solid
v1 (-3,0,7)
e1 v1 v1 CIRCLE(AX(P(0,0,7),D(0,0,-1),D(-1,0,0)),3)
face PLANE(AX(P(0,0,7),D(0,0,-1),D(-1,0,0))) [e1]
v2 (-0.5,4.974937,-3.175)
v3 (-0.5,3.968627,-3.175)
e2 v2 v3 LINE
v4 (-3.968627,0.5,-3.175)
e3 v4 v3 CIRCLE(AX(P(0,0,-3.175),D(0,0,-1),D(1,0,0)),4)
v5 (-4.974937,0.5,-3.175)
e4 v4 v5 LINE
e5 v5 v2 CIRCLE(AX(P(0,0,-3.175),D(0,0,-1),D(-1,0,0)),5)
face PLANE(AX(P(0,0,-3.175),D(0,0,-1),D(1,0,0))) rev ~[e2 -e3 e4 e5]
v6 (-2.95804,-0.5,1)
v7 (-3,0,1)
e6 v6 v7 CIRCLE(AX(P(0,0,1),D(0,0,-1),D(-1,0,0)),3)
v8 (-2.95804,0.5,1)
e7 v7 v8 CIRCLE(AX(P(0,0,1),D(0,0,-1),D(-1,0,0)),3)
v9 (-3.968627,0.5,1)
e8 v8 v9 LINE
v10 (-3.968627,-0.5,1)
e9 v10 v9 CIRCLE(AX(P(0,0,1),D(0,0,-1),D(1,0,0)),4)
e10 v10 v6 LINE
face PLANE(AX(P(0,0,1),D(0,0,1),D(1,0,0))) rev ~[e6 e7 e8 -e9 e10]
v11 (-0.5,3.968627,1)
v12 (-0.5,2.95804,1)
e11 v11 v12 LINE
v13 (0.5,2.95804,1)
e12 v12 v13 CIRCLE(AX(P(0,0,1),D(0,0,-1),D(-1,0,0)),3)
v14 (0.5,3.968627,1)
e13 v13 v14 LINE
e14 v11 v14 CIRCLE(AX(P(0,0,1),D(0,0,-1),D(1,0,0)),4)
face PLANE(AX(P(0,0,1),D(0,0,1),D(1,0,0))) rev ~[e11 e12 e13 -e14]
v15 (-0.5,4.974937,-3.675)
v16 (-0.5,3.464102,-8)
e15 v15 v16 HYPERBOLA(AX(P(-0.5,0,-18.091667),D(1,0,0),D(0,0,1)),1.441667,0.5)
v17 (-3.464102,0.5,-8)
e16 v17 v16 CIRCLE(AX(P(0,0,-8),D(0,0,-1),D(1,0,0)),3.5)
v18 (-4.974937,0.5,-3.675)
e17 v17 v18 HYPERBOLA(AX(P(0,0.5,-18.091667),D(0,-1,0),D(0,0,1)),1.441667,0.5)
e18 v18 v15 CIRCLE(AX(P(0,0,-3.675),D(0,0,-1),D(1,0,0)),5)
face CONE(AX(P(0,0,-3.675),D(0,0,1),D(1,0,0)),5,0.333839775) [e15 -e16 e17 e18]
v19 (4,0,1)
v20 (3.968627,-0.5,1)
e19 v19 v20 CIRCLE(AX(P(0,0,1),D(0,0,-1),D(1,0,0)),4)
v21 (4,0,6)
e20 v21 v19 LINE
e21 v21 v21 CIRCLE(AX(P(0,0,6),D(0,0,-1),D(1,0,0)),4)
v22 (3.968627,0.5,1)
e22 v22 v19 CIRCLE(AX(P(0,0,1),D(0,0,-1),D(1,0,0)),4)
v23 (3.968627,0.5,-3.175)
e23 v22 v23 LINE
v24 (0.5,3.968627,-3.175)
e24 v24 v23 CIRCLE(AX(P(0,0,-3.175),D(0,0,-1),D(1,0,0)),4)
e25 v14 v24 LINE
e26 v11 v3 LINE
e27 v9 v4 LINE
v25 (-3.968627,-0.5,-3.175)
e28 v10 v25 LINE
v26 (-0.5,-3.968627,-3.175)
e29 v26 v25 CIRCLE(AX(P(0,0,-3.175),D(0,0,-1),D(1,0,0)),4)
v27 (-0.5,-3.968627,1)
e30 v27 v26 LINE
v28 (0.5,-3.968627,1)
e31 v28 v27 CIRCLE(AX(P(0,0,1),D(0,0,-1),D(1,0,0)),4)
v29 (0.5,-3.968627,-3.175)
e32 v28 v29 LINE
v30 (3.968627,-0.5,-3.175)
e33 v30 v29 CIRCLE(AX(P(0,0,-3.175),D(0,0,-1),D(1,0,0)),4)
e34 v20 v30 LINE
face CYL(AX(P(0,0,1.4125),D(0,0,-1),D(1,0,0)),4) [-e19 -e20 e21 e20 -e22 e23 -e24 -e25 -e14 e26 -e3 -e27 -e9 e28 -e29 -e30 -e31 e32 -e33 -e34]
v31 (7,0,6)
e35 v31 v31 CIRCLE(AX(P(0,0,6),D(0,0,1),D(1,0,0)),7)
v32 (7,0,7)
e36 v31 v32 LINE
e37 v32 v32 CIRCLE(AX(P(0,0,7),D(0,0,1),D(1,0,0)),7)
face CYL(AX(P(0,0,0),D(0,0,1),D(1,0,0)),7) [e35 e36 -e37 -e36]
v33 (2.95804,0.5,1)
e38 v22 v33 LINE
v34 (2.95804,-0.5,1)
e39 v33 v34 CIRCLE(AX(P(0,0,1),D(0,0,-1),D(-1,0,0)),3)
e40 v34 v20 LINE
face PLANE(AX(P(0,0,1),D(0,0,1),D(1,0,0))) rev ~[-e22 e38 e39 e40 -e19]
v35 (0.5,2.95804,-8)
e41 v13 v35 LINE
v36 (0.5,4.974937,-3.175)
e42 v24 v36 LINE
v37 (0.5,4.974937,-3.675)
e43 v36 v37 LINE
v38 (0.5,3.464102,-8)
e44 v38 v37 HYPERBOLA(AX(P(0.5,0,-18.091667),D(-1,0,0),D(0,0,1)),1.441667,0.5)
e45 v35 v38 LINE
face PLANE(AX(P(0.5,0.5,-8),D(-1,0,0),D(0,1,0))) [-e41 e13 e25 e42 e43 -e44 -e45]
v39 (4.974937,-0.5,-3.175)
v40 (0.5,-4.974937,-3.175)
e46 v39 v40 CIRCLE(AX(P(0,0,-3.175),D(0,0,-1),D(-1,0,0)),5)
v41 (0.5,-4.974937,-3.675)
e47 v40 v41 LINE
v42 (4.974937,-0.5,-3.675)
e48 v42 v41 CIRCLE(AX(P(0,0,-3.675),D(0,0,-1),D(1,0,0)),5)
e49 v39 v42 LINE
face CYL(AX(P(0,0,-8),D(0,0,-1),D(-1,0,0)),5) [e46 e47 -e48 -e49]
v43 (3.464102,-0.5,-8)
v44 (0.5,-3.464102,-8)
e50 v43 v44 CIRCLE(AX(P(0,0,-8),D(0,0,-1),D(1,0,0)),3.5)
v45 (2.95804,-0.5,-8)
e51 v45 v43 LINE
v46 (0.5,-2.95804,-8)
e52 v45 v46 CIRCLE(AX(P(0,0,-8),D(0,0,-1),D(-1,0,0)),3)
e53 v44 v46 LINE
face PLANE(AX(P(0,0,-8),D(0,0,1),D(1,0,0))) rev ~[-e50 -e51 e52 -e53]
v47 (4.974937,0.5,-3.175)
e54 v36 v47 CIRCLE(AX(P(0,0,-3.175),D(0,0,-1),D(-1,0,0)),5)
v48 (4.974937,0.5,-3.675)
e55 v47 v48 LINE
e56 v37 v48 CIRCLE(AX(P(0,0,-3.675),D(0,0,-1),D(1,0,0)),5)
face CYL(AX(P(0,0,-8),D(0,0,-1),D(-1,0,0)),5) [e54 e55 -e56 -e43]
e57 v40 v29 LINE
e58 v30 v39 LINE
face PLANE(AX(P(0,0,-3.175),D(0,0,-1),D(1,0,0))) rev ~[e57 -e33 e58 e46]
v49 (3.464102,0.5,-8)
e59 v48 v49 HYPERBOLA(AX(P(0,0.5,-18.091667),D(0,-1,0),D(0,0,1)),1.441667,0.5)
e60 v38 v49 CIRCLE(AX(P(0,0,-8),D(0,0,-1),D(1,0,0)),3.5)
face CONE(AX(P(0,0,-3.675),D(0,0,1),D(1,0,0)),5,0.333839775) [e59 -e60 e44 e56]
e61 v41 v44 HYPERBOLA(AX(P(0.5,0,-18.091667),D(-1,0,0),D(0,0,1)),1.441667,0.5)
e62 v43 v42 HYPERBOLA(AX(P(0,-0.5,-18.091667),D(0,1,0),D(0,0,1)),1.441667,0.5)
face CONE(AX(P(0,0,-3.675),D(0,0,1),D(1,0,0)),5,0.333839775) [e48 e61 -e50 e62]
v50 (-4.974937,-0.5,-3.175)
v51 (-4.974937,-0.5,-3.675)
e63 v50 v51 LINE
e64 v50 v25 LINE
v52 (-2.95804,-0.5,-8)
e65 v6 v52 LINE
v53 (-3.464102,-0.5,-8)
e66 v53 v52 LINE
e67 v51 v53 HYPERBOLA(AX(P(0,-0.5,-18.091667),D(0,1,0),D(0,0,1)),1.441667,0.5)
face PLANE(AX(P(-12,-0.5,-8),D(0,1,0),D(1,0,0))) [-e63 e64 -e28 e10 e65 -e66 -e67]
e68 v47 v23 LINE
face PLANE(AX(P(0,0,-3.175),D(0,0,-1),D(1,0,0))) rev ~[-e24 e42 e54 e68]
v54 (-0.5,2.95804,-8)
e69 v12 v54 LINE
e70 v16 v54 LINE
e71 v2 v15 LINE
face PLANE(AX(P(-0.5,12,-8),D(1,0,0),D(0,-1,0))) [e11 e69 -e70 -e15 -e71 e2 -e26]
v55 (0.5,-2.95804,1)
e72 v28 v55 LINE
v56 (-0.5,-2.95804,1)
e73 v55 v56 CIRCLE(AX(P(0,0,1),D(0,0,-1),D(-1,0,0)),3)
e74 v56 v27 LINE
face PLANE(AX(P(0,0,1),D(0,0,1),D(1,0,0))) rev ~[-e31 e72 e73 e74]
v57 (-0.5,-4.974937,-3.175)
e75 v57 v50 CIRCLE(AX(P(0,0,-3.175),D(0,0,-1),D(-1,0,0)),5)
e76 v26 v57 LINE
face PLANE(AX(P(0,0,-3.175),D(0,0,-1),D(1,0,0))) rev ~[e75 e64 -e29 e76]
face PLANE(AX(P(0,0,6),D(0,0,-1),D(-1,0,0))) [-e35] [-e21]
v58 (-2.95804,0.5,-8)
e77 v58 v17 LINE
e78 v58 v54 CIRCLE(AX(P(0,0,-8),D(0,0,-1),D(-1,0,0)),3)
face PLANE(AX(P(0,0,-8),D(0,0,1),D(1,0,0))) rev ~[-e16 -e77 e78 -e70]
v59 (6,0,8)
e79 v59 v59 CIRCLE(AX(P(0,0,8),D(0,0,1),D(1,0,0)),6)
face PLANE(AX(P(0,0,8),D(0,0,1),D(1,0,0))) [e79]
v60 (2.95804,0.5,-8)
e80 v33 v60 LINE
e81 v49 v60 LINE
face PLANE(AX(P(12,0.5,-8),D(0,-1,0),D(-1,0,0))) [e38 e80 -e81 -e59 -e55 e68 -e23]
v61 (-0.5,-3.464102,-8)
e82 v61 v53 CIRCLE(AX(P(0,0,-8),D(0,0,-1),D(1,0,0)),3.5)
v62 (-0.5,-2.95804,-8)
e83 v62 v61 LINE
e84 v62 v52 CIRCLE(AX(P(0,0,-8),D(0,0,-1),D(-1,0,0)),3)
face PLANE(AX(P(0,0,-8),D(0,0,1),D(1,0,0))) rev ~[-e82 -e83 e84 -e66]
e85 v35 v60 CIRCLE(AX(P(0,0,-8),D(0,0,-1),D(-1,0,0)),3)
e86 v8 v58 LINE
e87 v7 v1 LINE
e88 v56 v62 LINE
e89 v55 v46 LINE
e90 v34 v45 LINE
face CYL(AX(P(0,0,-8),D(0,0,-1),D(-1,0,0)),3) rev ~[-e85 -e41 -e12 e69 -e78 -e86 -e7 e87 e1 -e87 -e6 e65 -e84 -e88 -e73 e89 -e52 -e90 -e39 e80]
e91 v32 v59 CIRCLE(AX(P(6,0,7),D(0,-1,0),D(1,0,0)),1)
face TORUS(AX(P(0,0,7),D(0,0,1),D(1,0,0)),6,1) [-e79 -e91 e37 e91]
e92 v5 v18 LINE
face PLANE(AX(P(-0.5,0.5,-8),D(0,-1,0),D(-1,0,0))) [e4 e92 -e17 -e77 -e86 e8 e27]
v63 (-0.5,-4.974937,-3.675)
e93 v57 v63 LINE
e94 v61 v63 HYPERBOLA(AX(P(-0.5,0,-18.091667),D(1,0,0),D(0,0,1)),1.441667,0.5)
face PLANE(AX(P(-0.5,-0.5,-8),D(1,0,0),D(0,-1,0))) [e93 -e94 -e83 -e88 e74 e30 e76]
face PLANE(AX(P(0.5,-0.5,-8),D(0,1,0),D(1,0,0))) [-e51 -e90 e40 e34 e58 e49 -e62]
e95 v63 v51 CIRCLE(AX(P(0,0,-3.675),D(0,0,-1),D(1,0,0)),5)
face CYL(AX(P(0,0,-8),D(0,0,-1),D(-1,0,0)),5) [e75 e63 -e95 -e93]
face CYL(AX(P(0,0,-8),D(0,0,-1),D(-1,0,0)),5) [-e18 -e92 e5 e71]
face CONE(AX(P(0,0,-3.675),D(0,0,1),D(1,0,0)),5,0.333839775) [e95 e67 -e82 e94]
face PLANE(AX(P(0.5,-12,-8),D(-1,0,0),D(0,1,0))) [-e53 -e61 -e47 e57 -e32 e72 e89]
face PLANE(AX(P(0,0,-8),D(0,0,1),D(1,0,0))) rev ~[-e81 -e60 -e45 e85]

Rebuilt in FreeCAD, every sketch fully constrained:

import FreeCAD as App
import Part
import Sketcher

V = App.Vector


def edges_at(feature, points):
    """Names of the edges that pass closest to the given points."""
    edges = feature.Shape.Edges
    near = lambda p: min(range(len(edges)), key=lambda i: edges[i].distToShape(Part.Vertex(*p))[0])
    return sorted({f"Edge{near(p) + 1}" for p in points})


def add_polygon(sketch, points):
    """Adds a closed chain of lines whose ends are joined by coincident constraints."""
    first, n = sketch.GeometryCount, len(points)
    for a, b in zip(points, points[1:] + points[:1]):
        sketch.addGeometry(Part.LineSegment(App.Vector(*a, 0), App.Vector(*b, 0)), False)
    for i in range(n):
        sketch.addConstraint(Sketcher.Constraint("Coincident", first + i, 2, first + (i + 1) % n, 1))

doc = App.newDocument("Part")
body = doc.addObject("PartDesign::Body", "Body")

# Sketch on XY plane
sketch1 = body.newObject("Sketcher::SketchObject", "Sketch")
sketch1.AttachmentSupport = (doc.getObject("XY_Plane"), [""])
sketch1.MapMode = "FlatFace"
sketch1.addGeometry(Part.Circle(V(0, 0, 0), V(0, 0, 1), 7), False)
sketch1.addConstraint([
    Sketcher.Constraint("Coincident", 0, 3, -1, 1),
    Sketcher.Constraint("Diameter", 0, 14.0),
])
pad1 = body.newObject("PartDesign::Pad", "Pad")
pad1.Profile = sketch1
pad1.Length = 16
pad1.Midplane = True

# Sketch on XY plane
sketch2 = body.newObject("Sketcher::SketchObject", "Sketch001")
sketch2.AttachmentSupport = (doc.getObject("XY_Plane"), [""])
sketch2.MapMode = "FlatFace"
sketch2.AttachmentOffset = App.Placement(V(0, 0, -8), App.Rotation())
add_polygon(sketch2, [(10.546, 10.546), (10.546, -10.546), (-10.546, -10.546), (-10.546, 10.546)])  # lines 0-3
sketch2.addGeometry(Part.Circle(V(0, 0, 0), V(0, 0, 1), 5), False)  # 4
sketch2.addConstraint([
    Sketcher.Constraint("Vertical", 0),
    Sketcher.Constraint("Horizontal", 1),
    Sketcher.Constraint("Vertical", 2),
    Sketcher.Constraint("Horizontal", 3),
    Sketcher.Constraint("Coincident", 4, 3, -1, 1),
    Sketcher.Constraint("Symmetric", 0, 2, 2, 2, -1, 1),
    Sketcher.Constraint("Equal", 3, 0),
    Sketcher.Constraint("Diameter", 4, 10.0),
    Sketcher.Constraint("DistanceX", 1, 2, 1, 1, 21.092),
])
pocket1 = body.newObject("PartDesign::Pocket", "Pocket")
pocket1.Profile = sketch2
pocket1.Length = 14
pocket1.Reversed = True

# Sketch on XZ plane
sketch3 = body.newObject("Sketcher::SketchObject", "Sketch002")
sketch3.AttachmentSupport = (doc.getObject("XZ_Plane"), [""])
sketch3.MapMode = "FlatFace"
add_polygon(sketch3, [(-5, -3.675), (-3.5, -8), (-5, -8)])  # lines 0-2
add_polygon(sketch3, [(-13, -3.175), (-13, 6), (-4, 6), (-4, -3.175)])  # lines 3-6
sketch3.addConstraint([
    Sketcher.Constraint("Horizontal", 1),
    Sketcher.Constraint("Vertical", 2),
    Sketcher.Constraint("Vertical", 3),
    Sketcher.Constraint("Horizontal", 4),
    Sketcher.Constraint("Vertical", 5),
    Sketcher.Constraint("Horizontal", 6),
    Sketcher.Constraint("DistanceX", 4, 1, 4, 2, 9.0),
    Sketcher.Constraint("DistanceX", 1, 2, 1, 1, 1.5),
    Sketcher.Constraint("DistanceY", 0, 2, -1, 1, 8.0),
    Sketcher.Constraint("DistanceX", 1, 2, -1, 1, 5.0),
    Sketcher.Constraint("DistanceX", 3, 2, -1, 1, 13.0),
    Sketcher.Constraint("DistanceY", -1, 1, 3, 2, 6.0),
    Sketcher.Constraint("DistanceY", 2, 2, 5, 2, 0.5),
    Sketcher.Constraint("DistanceY", 2, 1, 2, 2, 4.325),
])
groove = body.newObject("PartDesign::Groove", "Groove")
groove.Profile = sketch3
groove.ReferenceAxis = (sketch3, ["V_Axis"])
groove.Angle = 360

# Sketch on XY plane
sketch4 = body.newObject("Sketcher::SketchObject", "Sketch003")
sketch4.AttachmentSupport = (doc.getObject("XY_Plane"), [""])
sketch4.MapMode = "FlatFace"
sketch4.AttachmentOffset = App.Placement(V(0, 0, -8), App.Rotation())
sketch4.addGeometry(Part.Circle(V(0, 0, 0), V(0, 0, 1), 3), False)
sketch4.addConstraint([
    Sketcher.Constraint("Coincident", 0, 3, -1, 1),
    Sketcher.Constraint("Diameter", 0, 6.0),
])
pocket2 = body.newObject("PartDesign::Pocket", "Pocket001")
pocket2.Profile = sketch4
pocket2.Length = 15
pocket2.Reversed = True

# Sketch on XY plane
sketch5 = body.newObject("Sketcher::SketchObject", "Sketch004")
sketch5.AttachmentSupport = (doc.getObject("XY_Plane"), [""])
sketch5.MapMode = "FlatFace"
sketch5.AttachmentOffset = App.Placement(V(0, 0, -8), App.Rotation())
add_polygon(sketch5, [(-0.5, 12), (0.5, 12), (0.5, 0.5), (12, 0.5), (12, -0.5), (0.5, -0.5), (0.5, -12), (-0.5, -12), (-0.5, -0.5), (-12, -0.5), (-12, 0.5), (-0.5, 0.5)])  # lines 0-11
sketch5.addConstraint([
    Sketcher.Constraint("Horizontal", 0),
    Sketcher.Constraint("Vertical", 1),
    Sketcher.Constraint("Horizontal", 2),
    Sketcher.Constraint("Vertical", 3),
    Sketcher.Constraint("Horizontal", 4),
    Sketcher.Constraint("Vertical", 5),
    Sketcher.Constraint("Horizontal", 6),
    Sketcher.Constraint("Vertical", 7),
    Sketcher.Constraint("Horizontal", 8),
    Sketcher.Constraint("Vertical", 9),
    Sketcher.Constraint("Horizontal", 10),
    Sketcher.Constraint("Vertical", 11),
    Sketcher.Constraint("Symmetric", 0, 2, 6, 2, -1, 1),
    Sketcher.Constraint("Symmetric", 2, 2, 8, 2, -1, 1),
    Sketcher.Constraint("Symmetric", 4, 2, 10, 2, -1, 1),
    Sketcher.Constraint("Symmetric", 4, 2, 7, 2, -2),
    Sketcher.Constraint("Equal", 10, 1),
    Sketcher.Constraint("Equal", 6, 3),
    Sketcher.Constraint("DistanceX", 0, 1, 0, 2, 1.0),
    Sketcher.Constraint("DistanceX", 2, 1, 2, 2, 11.5),
])
pocket3 = body.newObject("PartDesign::Pocket", "Pocket002")
pocket3.Profile = sketch5
pocket3.Length = 9
pocket3.Reversed = True
doc.recompute()

fillet = body.newObject("PartDesign::Fillet", "Fillet")
fillet.Base = (pocket3, edges_at(pocket3, [(-7, 0, 8)]))
fillet.Radius = 1

doc.recompute()
